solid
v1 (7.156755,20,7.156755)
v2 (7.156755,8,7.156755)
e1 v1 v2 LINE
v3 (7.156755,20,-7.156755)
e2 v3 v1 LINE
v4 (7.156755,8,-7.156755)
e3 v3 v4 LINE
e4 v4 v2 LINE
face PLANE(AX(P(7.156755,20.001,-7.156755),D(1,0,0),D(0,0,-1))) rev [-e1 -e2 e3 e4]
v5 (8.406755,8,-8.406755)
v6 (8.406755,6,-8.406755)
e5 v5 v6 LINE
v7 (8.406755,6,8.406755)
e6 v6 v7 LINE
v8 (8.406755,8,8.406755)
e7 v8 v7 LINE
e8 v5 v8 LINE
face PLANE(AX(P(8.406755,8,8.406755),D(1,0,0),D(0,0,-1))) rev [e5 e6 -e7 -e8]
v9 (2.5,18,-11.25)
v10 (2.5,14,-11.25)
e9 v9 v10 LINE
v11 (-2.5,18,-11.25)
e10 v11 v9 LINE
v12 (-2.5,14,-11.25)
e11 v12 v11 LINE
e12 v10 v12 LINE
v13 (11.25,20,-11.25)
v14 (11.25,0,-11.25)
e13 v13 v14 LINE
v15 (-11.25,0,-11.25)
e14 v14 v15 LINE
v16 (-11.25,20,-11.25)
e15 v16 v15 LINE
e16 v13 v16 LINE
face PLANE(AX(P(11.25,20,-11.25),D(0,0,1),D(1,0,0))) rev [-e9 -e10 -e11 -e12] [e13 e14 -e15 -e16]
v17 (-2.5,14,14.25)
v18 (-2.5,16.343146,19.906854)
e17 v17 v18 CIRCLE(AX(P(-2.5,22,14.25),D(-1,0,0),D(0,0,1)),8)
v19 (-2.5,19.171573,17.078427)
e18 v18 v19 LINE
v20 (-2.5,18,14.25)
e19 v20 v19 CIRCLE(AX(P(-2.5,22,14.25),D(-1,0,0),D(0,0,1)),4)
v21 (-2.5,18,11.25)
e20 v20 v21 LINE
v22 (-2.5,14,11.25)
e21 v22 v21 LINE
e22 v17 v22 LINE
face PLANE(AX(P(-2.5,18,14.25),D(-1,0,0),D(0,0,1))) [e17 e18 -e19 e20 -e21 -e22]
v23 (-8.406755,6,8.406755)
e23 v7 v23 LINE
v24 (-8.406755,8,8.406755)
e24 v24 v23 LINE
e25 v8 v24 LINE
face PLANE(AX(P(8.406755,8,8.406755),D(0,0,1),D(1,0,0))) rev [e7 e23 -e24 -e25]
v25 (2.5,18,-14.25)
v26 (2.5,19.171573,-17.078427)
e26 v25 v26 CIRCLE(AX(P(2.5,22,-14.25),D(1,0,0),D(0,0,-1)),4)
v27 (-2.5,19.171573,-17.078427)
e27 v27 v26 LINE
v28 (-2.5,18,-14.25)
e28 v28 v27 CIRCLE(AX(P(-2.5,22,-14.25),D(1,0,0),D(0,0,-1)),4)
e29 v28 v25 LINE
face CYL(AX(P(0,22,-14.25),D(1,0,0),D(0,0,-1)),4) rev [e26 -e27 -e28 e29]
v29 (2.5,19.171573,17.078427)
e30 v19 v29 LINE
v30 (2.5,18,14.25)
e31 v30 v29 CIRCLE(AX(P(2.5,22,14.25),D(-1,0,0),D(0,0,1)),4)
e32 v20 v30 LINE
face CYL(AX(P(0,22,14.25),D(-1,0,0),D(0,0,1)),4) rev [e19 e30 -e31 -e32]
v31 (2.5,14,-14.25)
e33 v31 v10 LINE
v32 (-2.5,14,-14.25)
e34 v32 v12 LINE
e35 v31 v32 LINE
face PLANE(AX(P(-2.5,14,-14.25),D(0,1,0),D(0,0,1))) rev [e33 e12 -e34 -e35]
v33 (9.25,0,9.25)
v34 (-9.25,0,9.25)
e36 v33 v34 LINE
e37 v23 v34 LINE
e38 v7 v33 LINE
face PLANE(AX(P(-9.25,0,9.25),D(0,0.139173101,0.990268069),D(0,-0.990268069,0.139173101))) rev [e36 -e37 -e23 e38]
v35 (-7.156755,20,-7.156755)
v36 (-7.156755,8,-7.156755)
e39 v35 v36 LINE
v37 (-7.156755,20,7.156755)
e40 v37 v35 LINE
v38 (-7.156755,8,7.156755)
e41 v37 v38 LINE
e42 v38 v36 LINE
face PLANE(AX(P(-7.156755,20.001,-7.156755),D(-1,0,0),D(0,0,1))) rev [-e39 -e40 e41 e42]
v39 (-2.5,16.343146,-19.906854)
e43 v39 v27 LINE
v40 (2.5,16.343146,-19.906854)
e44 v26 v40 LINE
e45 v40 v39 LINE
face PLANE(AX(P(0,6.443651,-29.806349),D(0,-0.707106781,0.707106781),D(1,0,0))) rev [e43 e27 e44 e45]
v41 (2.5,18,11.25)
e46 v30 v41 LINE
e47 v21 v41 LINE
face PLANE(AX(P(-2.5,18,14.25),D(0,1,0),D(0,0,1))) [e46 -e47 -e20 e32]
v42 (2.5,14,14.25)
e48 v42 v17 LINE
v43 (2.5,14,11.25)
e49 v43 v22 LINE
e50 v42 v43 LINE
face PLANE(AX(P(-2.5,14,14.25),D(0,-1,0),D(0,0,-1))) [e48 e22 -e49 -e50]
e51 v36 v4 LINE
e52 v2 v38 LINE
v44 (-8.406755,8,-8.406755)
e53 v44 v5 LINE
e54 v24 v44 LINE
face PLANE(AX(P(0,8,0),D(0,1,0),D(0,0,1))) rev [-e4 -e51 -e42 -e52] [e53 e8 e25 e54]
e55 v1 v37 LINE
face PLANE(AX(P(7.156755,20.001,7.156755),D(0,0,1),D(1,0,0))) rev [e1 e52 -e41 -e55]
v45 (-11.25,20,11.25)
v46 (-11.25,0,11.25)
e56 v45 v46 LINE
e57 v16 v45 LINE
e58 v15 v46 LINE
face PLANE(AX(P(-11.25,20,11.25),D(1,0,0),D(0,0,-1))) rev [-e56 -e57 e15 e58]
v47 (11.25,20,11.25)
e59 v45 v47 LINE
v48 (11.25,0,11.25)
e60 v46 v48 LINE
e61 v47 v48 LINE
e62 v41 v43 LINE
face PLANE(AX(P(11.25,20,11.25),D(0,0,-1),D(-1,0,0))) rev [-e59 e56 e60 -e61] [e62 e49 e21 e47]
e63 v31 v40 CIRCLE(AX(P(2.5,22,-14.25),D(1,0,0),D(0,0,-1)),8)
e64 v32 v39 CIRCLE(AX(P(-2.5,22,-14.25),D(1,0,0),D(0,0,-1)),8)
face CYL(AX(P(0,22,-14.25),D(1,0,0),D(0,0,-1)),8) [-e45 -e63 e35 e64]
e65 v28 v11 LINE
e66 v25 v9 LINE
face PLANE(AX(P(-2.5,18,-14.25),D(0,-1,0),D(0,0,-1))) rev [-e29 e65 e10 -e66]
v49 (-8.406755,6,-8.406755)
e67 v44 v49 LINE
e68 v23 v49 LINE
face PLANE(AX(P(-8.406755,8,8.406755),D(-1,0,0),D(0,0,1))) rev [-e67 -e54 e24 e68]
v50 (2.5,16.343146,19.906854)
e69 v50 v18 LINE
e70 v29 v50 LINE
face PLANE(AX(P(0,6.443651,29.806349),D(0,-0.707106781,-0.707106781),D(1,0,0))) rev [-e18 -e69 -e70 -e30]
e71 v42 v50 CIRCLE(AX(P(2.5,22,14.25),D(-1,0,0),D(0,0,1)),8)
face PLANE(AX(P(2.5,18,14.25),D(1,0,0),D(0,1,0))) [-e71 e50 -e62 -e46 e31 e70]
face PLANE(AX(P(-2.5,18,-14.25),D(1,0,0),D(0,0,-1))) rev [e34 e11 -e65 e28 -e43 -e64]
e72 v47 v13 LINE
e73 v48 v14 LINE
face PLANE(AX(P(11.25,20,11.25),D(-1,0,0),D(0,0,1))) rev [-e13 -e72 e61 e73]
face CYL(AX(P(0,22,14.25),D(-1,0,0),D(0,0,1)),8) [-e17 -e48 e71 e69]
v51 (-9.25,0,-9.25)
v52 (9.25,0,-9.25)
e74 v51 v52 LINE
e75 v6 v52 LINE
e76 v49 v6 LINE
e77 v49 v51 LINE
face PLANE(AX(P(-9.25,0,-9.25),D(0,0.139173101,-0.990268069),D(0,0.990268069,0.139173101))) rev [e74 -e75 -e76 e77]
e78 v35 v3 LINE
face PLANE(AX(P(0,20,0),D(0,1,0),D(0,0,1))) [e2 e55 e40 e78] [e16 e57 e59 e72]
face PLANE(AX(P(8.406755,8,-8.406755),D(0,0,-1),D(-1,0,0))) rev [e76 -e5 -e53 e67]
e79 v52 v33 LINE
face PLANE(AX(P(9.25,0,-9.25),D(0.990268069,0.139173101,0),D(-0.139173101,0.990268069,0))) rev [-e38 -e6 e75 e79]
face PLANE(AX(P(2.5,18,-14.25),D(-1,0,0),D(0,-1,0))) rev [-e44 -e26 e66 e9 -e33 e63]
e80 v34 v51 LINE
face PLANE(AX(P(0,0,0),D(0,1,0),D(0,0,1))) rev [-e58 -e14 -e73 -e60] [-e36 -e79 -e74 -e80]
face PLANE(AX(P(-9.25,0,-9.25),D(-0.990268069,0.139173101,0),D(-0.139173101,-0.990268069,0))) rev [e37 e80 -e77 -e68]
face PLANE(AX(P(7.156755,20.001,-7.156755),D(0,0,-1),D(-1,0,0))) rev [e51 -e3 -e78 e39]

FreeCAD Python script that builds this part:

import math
import FreeCAD as App
import Part
import Sketcher
from FreeCAD import Vector
Q = App.Units.Quantity


def add_polygon(sketch, points):
    """Adds a closed chain of lines whose ends are joined by coincident constraints."""
    first, n = sketch.GeometryCount, len(points)
    for a, b in zip(points, points[1:] + points[:1]):
        sketch.addGeometry(Part.LineSegment(App.Vector(*a, 0), App.Vector(*b, 0)), False)
    for i in range(n):
        sketch.addConstraint(Sketcher.Constraint("Coincident", first + i, 2, first + (i + 1) % n, 1))

doc = App.newDocument("Part")
body = doc.addObject("PartDesign::Body", "Body")

# Sketch on XZ plane
sketch1 = body.newObject("Sketcher::SketchObject", "Sketch")
sketch1.AttachmentSupport = (doc.getObject("XZ_Plane"), [""])
sketch1.MapMode = "FlatFace"
add_polygon(sketch1, [(-11, -11), (-11, 11), (11, 11), (11, -11)])  # lines 0-3
sketch1.addConstraint([
    Sketcher.Constraint("Vertical", 0),
    Sketcher.Constraint("Horizontal", 1),
    Sketcher.Constraint("Vertical", 2),
    Sketcher.Constraint("Horizontal", 3),
    Sketcher.Constraint("Symmetric", 0, 2, 2, 2, -1, 1),
    Sketcher.Constraint("Equal", 3, 0),
    Sketcher.Constraint("DistanceX", 1, 1, 1, 2, Q("22.5 mm")),
])
pad1 = body.newObject("PartDesign::Pad", "Pad")
pad1.Profile = sketch1
pad1.Length = 20
pad1.Reversed = True

# Sketch on XY plane
sketch2 = body.newObject("Sketcher::SketchObject", "Sketch001")
sketch2.AttachmentSupport = (doc.getObject("XY_Plane"), [""])
sketch2.MapMode = "FlatFace"
sketch2.AttachmentOffset = App.Placement(Vector(0, 0, -11.25), App.Rotation())
add_polygon(sketch2, [(2.5, 18), (2.5, 14), (-2.5, 14), (-2.5, 18)])  # lines 0-3
sketch2.addConstraint([
    Sketcher.Constraint("Vertical", 0),
    Sketcher.Constraint("Horizontal", 1),
    Sketcher.Constraint("Vertical", 2),
    Sketcher.Constraint("Horizontal", 3),
    Sketcher.Constraint("DistanceX", 1, 2, 1, 1, Q("5 mm")),
    Sketcher.Constraint("DistanceY", 0, 2, 0, 1, Q("4 mm")),
    Sketcher.Constraint("DistanceY", -1, 1, 0, 2, Q("14 mm")),
    Sketcher.Constraint("DistanceX", -1, 1, 0, 2, Q("2.5 mm")),
])

# Sketch on YZ plane
sketch3 = body.newObject("Sketcher::SketchObject", "Sketch002")
sketch3.AttachmentSupport = (doc.getObject("YZ_Plane"), [""])
sketch3.MapMode = "FlatFace"
sketch3.addGeometry([
    Part.LineSegment(Vector(16, -11.2, 0), Vector(16, -14.2, 0)),
    Part.ArcOfCircle(Part.Circle(Vector(22, -14.2, 0), Vector(0, 0, 1), 6), math.radians(180), math.radians(225)),
], False)
sketch3.addConstraint([
    Sketcher.Constraint("Tangent", 0, 2, 1, 1),
    Sketcher.Constraint("Vertical", 0),
    Sketcher.Constraint("Radius", 1, Q("6 mm")),
    Sketcher.Constraint("DistanceY", 0, 2, 0, 1, Q("3 mm")),
    Sketcher.Constraint("DistanceX", -1, 1, 1, 3, Q("22 mm")),
    Sketcher.Constraint("DistanceY", 1, 3, -1, 1, Q("14.25 mm")),
    Sketcher.Constraint("DistanceX", -1, 1, 1, 2, Q("17.757359 mm")),
])
doc.recompute()

additivepipe = body.newObject("PartDesign::AdditivePipe", "AdditivePipe")
additivepipe.Profile = sketch2
additivepipe.Spine = (sketch3, ["Edge1", "Edge2"])
doc.recompute()

mirrored = body.newObject("PartDesign::Mirrored", "Mirrored")
mirrored.Originals = [additivepipe]
mirrored.MirrorPlane = (doc.getObject("XY_Plane"), [""])
body.Tip = mirrored

# Sketch on XZ plane
sketch4 = body.newObject("Sketcher::SketchObject", "Sketch003")
sketch4.AttachmentSupport = (doc.getObject("XZ_Plane"), [""])
sketch4.MapMode = "FlatFace"
add_polygon(sketch4, [(-9, 9), (-9, -9), (9, -9), (9, 9)])  # lines 0-3
sketch4.addConstraint([
    Sketcher.Constraint("Vertical", 0),
    Sketcher.Constraint("Horizontal", 1),
    Sketcher.Constraint("Vertical", 2),
    Sketcher.Constraint("Horizontal", 3),
    Sketcher.Constraint("Symmetric", 0, 2, 2, 2, -1, 1),
    Sketcher.Constraint("Equal", 3, 0),
    Sketcher.Constraint("DistanceX", 1, 1, 1, 2, Q("18.5 mm")),
])
pocket1 = body.newObject("PartDesign::Pocket", "Pocket")
pocket1.Profile = sketch4
pocket1.Length = 6
pocket1.TaperAngle = -8

# Sketch on XZ plane
sketch5 = body.newObject("Sketcher::SketchObject", "Sketch004")
sketch5.AttachmentSupport = (doc.getObject("XZ_Plane"), [""])
sketch5.MapMode = "FlatFace"
sketch5.AttachmentOffset = App.Placement(Vector(0, 0, -6), App.Rotation())
add_polygon(sketch5, [(-8, 8), (-8, -8), (8, -8), (8, 8)])  # lines 0-3
sketch5.addConstraint([
    Sketcher.Constraint("Vertical", 0),
    Sketcher.Constraint("Horizontal", 1),
    Sketcher.Constraint("Vertical", 2),
    Sketcher.Constraint("Horizontal", 3),
    Sketcher.Constraint("Symmetric", 0, 2, 2, 2, -1, 1),
    Sketcher.Constraint("Equal", 3, 0),
    Sketcher.Constraint("DistanceX", 1, 1, 1, 2, Q("16.81351 mm")),
])
pocket2 = body.newObject("PartDesign::Pocket", "Pocket001")
pocket2.Profile = sketch5
pocket2.Length = 2

# Sketch on XZ plane
sketch6 = body.newObject("Sketcher::SketchObject", "Sketch005")
sketch6.AttachmentSupport = (doc.getObject("XZ_Plane"), [""])
sketch6.MapMode = "FlatFace"
sketch6.AttachmentOffset = App.Placement(Vector(0, 0, -8), App.Rotation())
add_polygon(sketch6, [(-7, 7), (-7, -7), (7, -7), (7, 7)])  # lines 0-3
sketch6.addConstraint([
    Sketcher.Constraint("Vertical", 0),
    Sketcher.Constraint("Horizontal", 1),
    Sketcher.Constraint("Vertical", 2),
    Sketcher.Constraint("Horizontal", 3),
    Sketcher.Constraint("Symmetric", 0, 2, 2, 2, -1, 1),
    Sketcher.Constraint("Equal", 3, 0),
    Sketcher.Constraint("DistanceX", 1, 1, 1, 2, Q("14.31351 mm")),
])
pocket3 = body.newObject("PartDesign::Pocket", "Pocket002")
pocket3.Profile = sketch6
pocket3.Type = "UpToFirst"

doc.recompute()
